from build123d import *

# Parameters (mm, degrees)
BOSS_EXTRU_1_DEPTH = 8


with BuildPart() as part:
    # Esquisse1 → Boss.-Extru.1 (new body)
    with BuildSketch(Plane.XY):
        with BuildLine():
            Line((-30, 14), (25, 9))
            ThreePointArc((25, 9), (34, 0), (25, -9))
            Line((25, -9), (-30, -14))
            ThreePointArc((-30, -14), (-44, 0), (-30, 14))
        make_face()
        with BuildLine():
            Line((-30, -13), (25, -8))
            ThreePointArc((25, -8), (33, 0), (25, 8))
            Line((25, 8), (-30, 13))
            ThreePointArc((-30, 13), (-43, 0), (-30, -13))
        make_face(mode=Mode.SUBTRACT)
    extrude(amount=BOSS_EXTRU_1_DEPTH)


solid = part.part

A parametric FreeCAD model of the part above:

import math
import FreeCAD as App
import Part
import Sketcher

V = App.Vector

doc = App.newDocument("Part")
params = doc.addObject("Spreadsheet::Sheet", "Params")
for row, (alias, value) in enumerate([
    ("sketch1_radius", "14 mm"),
    ("sketch1_radius2", "9 mm"),
    ("sketch1_radius3", "13 mm"),
    ("pad1_length", "8 mm"),
], start=1):
    params.set(f"A{row}", alias)
    params.set(f"B{row}", "=" + value)
    params.setAlias(f"B{row}", alias)

body = doc.addObject("PartDesign::Body", "Body")

# Sketch on XY plane
sketch1 = doc.addObject("Sketcher::SketchObject", "Sketch")
body.addObject(sketch1)
sketch1.AttachmentSupport = (doc.XY_Plane, [""])
sketch1.MapMode = "FlatFace"
sketch1.addGeometry([
    Part.LineSegment(V(25, 9, 0), V(-30, 14, 0)),  # 0
    Part.ArcOfCircle(Part.Circle(V(-30, 0, 0), V(0, 0, 1), 14), math.radians(90), math.radians(270)),  # 1
    Part.LineSegment(V(-30, -14, 0), V(25, -9, 0)),  # 2
    Part.ArcOfCircle(Part.Circle(V(25, 0, 0), V(0, 0, 1), 9), math.radians(-90), math.radians(90)),  # 3
    Part.ArcOfCircle(Part.Circle(V(-30, 0, 0), V(0, 0, 1), 13), math.radians(90), math.radians(270)),  # 4
    Part.LineSegment(V(-30, 13, 0), V(25, 8, 0)),  # 5
    Part.ArcOfCircle(Part.Circle(V(25, 0, 0), V(0, 0, 1), 8), math.radians(-90), math.radians(90)),  # 6
    Part.LineSegment(V(25, -8, 0), V(-30, -13, 0)),  # 7
], False)
sketch1.addConstraint([
    Sketcher.Constraint("Coincident", 0, 2, 1, 1),
    Sketcher.Constraint("Coincident", 1, 2, 2, 1),
    Sketcher.Constraint("Coincident", 2, 2, 3, 1),
    Sketcher.Constraint("Coincident", 3, 2, 0, 1),
    Sketcher.Constraint("Coincident", 4, 1, 5, 1),
    Sketcher.Constraint("Coincident", 5, 2, 6, 2),
    Sketcher.Constraint("Coincident", 6, 1, 7, 1),
    Sketcher.Constraint("Coincident", 7, 2, 4, 2),
    Sketcher.Constraint("Coincident", 4, 3, 1, 3),
    Sketcher.Constraint("Coincident", 6, 3, 3, 3),
    Sketcher.Constraint("Symmetric", 0, 2, 1, 2, -1),
    Sketcher.Constraint("Symmetric", 2, 2, 3, 2, -1),
    Sketcher.Constraint("Parallel", 0, 5),
    Sketcher.Constraint("Parallel", 2, 7),
    Sketcher.Constraint("Vertical", 4, 3, 0, 2),
    Sketcher.Constraint("Vertical", 6, 3, 2, 2),
    Sketcher.Constraint("Vertical", 1, 2, 4, 1),
    Sketcher.Constraint("Vertical", 3, 2, 5, 2),
    Sketcher.Constraint("Vertical", 5, 2, 6, 1),
    Sketcher.Constraint("Radius", 1, 14.0),
    Sketcher.Constraint("Radius", 3, 9.0),
    Sketcher.Constraint("Radius", 4, 13.0),
    Sketcher.Constraint("DistanceX", 1, 3, -1, 1, 30.0),
    Sketcher.Constraint("DistanceX", -1, 1, 3, 3, 25.0),
])
sketch1.setExpression("Constraints[19]", "Params.sketch1_radius")
sketch1.setExpression("Constraints[20]", "Params.sketch1_radius2")
sketch1.setExpression("Constraints[21]", "Params.sketch1_radius3")
pad1 = doc.addObject("PartDesign::Pad", "Pad")
body.addObject(pad1)
pad1.Profile = sketch1
pad1.setExpression("Length", "Params.pad1_length")

doc.recompute()
